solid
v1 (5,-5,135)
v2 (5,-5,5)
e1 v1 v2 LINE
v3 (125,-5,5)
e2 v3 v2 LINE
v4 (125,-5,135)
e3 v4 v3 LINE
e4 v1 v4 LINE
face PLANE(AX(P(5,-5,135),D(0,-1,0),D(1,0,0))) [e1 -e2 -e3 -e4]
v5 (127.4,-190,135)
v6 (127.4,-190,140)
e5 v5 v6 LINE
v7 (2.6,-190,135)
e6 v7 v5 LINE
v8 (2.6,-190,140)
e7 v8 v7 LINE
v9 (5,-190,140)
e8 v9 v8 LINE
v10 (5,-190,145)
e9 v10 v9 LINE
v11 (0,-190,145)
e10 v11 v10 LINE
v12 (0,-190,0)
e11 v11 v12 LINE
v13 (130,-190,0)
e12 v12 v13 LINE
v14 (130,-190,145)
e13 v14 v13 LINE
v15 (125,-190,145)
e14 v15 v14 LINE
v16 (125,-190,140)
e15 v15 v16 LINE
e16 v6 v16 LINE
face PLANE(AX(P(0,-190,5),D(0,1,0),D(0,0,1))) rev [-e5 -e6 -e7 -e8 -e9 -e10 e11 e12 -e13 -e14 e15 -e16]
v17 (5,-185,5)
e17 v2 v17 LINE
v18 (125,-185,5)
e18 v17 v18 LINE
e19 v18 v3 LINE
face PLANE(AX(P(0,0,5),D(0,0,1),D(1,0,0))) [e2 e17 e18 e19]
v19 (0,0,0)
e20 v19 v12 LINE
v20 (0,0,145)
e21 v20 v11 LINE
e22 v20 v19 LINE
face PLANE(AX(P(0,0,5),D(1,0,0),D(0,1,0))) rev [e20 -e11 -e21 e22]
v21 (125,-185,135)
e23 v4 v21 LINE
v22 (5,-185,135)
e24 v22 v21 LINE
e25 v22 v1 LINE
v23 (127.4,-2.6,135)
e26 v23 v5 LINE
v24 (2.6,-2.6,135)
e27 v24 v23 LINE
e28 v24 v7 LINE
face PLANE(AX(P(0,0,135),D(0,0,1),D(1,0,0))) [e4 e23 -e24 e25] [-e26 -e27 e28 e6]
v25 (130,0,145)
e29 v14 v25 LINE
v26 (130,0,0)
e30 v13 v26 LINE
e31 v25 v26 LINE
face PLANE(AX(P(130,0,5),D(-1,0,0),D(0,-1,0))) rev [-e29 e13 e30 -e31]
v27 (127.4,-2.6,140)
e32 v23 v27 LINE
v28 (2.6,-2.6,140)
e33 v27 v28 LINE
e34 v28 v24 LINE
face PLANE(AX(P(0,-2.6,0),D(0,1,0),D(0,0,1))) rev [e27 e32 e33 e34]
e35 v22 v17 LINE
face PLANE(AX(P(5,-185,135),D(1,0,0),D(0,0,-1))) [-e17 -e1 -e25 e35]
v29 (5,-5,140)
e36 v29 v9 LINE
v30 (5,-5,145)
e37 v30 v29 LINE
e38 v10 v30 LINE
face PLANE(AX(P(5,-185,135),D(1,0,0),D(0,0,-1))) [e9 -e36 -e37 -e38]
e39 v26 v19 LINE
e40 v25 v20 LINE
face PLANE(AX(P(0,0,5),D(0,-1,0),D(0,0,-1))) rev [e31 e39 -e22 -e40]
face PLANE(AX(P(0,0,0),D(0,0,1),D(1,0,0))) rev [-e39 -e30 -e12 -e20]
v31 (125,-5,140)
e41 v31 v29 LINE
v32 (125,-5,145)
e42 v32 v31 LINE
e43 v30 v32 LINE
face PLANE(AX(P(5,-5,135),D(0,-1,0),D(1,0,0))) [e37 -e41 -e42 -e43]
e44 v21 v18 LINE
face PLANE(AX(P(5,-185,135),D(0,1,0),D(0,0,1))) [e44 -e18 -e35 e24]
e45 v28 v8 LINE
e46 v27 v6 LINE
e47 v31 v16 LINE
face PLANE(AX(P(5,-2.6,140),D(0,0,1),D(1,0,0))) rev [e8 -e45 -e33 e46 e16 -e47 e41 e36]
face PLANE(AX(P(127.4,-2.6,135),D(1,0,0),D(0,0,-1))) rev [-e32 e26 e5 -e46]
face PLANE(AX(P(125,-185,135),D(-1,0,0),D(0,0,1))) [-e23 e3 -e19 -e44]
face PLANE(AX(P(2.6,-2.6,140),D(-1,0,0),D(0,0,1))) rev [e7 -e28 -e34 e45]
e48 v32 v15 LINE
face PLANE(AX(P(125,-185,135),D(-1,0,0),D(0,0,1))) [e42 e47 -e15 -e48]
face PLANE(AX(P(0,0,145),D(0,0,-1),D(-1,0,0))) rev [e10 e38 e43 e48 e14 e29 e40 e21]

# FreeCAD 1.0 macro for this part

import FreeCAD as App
import Part
import Sketcher
Q = App.Units.Quantity

doc = App.newDocument("Part")
body = doc.addObject("PartDesign::Body", "Body")

# Sketch on XY plane
sketch1 = doc.addObject("Sketcher::SketchObject", "Sketch")
body.addObject(sketch1)
sketch1.AttachmentSupport = (doc.XY_Plane, [""])
sketch1.MapMode = "FlatFace"
sketch1.addGeometry([
    Part.LineSegment(App.Vector(0, 0, 0), App.Vector(0, -190, 0)),
    Part.LineSegment(App.Vector(0, -190, 0), App.Vector(130, -190, 0)),
    Part.LineSegment(App.Vector(130, -190, 0), App.Vector(130, 0, 0)),
    Part.LineSegment(App.Vector(130, 0, 0), App.Vector(0, 0, 0)),
], False)
sketch1.addConstraint([
    Sketcher.Constraint("Coincident", 0, 2, 1, 1),
    Sketcher.Constraint("Coincident", 1, 2, 2, 1),
    Sketcher.Constraint("Coincident", 2, 2, 3, 1),
    Sketcher.Constraint("Coincident", 3, 2, 0, 1),
    Sketcher.Constraint("Vertical", 0),
    Sketcher.Constraint("Horizontal", 1),
    Sketcher.Constraint("Vertical", 2),
    Sketcher.Constraint("Horizontal", 3),
    Sketcher.Constraint("Coincident", 3, 2, -1, 1),
    Sketcher.Constraint("DistanceX", 1, 1, 1, 2, Q("130 mm")),
    Sketcher.Constraint("DistanceY", 0, 2, 0, 1, Q("190 mm")),
])
pad1 = doc.addObject("PartDesign::Pad", "Pad")
body.addObject(pad1)
pad1.Profile = sketch1
pad1.Length = 5

# Sketch on XY plane
sketch2 = doc.addObject("Sketcher::SketchObject", "Sketch001")
body.addObject(sketch2)
sketch2.AttachmentSupport = (doc.XY_Plane, [""])
sketch2.MapMode = "FlatFace"
sketch2.AttachmentOffset = App.Placement(App.Vector(0, 0, 5), App.Rotation())
sketch2.addGeometry([
    Part.LineSegment(App.Vector(0, 0, 0), App.Vector(0, -190, 0)),  # 0
    Part.LineSegment(App.Vector(0, -190, 0), App.Vector(130, -190, 0)),  # 1
    Part.LineSegment(App.Vector(130, -190, 0), App.Vector(130, 0, 0)),  # 2
    Part.LineSegment(App.Vector(130, 0, 0), App.Vector(0, 0, 0)),  # 3
    Part.LineSegment(App.Vector(125, -185, 0), App.Vector(5, -185, 0)),  # 4
    Part.LineSegment(App.Vector(5, -185, 0), App.Vector(5, -5, 0)),  # 5
    Part.LineSegment(App.Vector(5, -5, 0), App.Vector(125, -5, 0)),  # 6
    Part.LineSegment(App.Vector(125, -5, 0), App.Vector(125, -185, 0)),  # 7
], False)
sketch2.addConstraint([
    Sketcher.Constraint("Coincident", 0, 2, 1, 1),
    Sketcher.Constraint("Coincident", 1, 2, 2, 1),
    Sketcher.Constraint("Coincident", 2, 2, 3, 1),
    Sketcher.Constraint("Coincident", 3, 2, 0, 1),
    Sketcher.Constraint("Coincident", 4, 2, 5, 1),
    Sketcher.Constraint("Coincident", 5, 2, 6, 1),
    Sketcher.Constraint("Coincident", 6, 2, 7, 1),
    Sketcher.Constraint("Coincident", 7, 2, 4, 1),
    Sketcher.Constraint("Vertical", 0),
    Sketcher.Constraint("Horizontal", 1),
    Sketcher.Constraint("Vertical", 2),
    Sketcher.Constraint("Horizontal", 3),
    Sketcher.Constraint("Horizontal", 4),
    Sketcher.Constraint("Vertical", 5),
    Sketcher.Constraint("Horizontal", 6),
    Sketcher.Constraint("Vertical", 7),
    Sketcher.Constraint("Coincident", 3, 2, -1, 1),
    Sketcher.Constraint("DistanceX", 1, 1, 1, 2, Q("130 mm")),
    Sketcher.Constraint("DistanceX", 4, 2, 4, 1, Q("120 mm")),
    Sketcher.Constraint("DistanceY", 0, 2, 0, 1, Q("190 mm")),
    Sketcher.Constraint("DistanceY", 5, 1, 5, 2, Q("180 mm")),
    Sketcher.Constraint("DistanceX", -1, 1, 4, 2, Q("5 mm")),
    Sketcher.Constraint("DistanceY", 4, 2, -1, 1, Q("185 mm")),
])
pad2 = doc.addObject("PartDesign::Pad", "Pad001")
body.addObject(pad2)
pad2.Profile = sketch2
pad2.Length = 130

# Sketch on XY plane
sketch3 = doc.addObject("Sketcher::SketchObject", "Sketch002")
body.addObject(sketch3)
sketch3.AttachmentSupport = (doc.XY_Plane, [""])
sketch3.MapMode = "FlatFace"
sketch3.AttachmentOffset = App.Placement(App.Vector(0, 0, 135), App.Rotation())
sketch3.addGeometry([
    Part.LineSegment(App.Vector(0, 0, 0), App.Vector(0, -190, 0)),  # 0
    Part.LineSegment(App.Vector(0, -190, 0), App.Vector(5, -190, 0)),  # 1
    Part.LineSegment(App.Vector(5, -190, 0), App.Vector(5, -5, 0)),  # 2
    Part.LineSegment(App.Vector(5, -5, 0), App.Vector(125, -5, 0)),  # 3
    Part.LineSegment(App.Vector(125, -5, 0), App.Vector(125, -190, 0)),  # 4
    Part.LineSegment(App.Vector(125, -190, 0), App.Vector(130, -190, 0)),  # 5
    Part.LineSegment(App.Vector(130, -190, 0), App.Vector(130, 0, 0)),  # 6
    Part.LineSegment(App.Vector(130, 0, 0), App.Vector(0, 0, 0)),  # 7
], False)
sketch3.addConstraint([
    Sketcher.Constraint("Coincident", 0, 2, 1, 1),
    Sketcher.Constraint("Coincident", 1, 2, 2, 1),
    Sketcher.Constraint("Coincident", 2, 2, 3, 1),
    Sketcher.Constraint("Coincident", 3, 2, 4, 1),
    Sketcher.Constraint("Coincident", 4, 2, 5, 1),
    Sketcher.Constraint("Coincident", 5, 2, 6, 1),
    Sketcher.Constraint("Coincident", 6, 2, 7, 1),
    Sketcher.Constraint("Coincident", 7, 2, 0, 1),
    Sketcher.Constraint("Vertical", 0),
    Sketcher.Constraint("Horizontal", 1),
    Sketcher.Constraint("Vertical", 2),
    Sketcher.Constraint("Horizontal", 3),
    Sketcher.Constraint("Vertical", 4),
    Sketcher.Constraint("Horizontal", 5),
    Sketcher.Constraint("Vertical", 6),
    Sketcher.Constraint("Horizontal", 7),
    Sketcher.Constraint("Coincident", 7, 2, -1, 1),
    Sketcher.Constraint("Horizontal", 1, 2, 4, 2),
    Sketcher.Constraint("Equal", 1, 5),
    Sketcher.Constraint("DistanceX", 1, 1, 1, 2, Q("5 mm")),
    Sketcher.Constraint("DistanceX", 3, 1, 3, 2, Q("120 mm")),
    Sketcher.Constraint("DistanceY", 0, 2, 0, 1, Q("190 mm")),
    Sketcher.Constraint("DistanceY", 2, 1, 2, 2, Q("185 mm")),
])
pad3 = doc.addObject("PartDesign::Pad", "Pad002")
body.addObject(pad3)
pad3.Profile = sketch3
pad3.Length = 10

# Sketch on XZ plane
sketch4 = doc.addObject("Sketcher::SketchObject", "Sketch003")
body.addObject(sketch4)
sketch4.AttachmentSupport = (doc.XZ_Plane, [""])
sketch4.MapMode = "FlatFace"
sketch4.AttachmentOffset = App.Placement(App.Vector(0, 0, 190), App.Rotation())
sketch4.addGeometry([
    Part.LineSegment(App.Vector(2.6, 140, 0), App.Vector(2.6, 135, 0)),  # 0
    Part.LineSegment(App.Vector(2.6, 135, 0), App.Vector(5, 135, 0)),  # 1
    Part.LineSegment(App.Vector(5, 135, 0), App.Vector(5, 140, 0)),  # 2
    Part.LineSegment(App.Vector(5, 140, 0), App.Vector(2.6, 140, 0)),  # 3
    Part.LineSegment(App.Vector(125, 140, 0), App.Vector(125, 135, 0)),  # 4
    Part.LineSegment(App.Vector(125, 135, 0), App.Vector(127.4, 135, 0)),  # 5
    Part.LineSegment(App.Vector(127.4, 135, 0), App.Vector(127.4, 140, 0)),  # 6
    Part.LineSegment(App.Vector(127.4, 140, 0), App.Vector(125, 140, 0)),  # 7
], False)
sketch4.addConstraint([
    Sketcher.Constraint("Coincident", 0, 2, 1, 1),
    Sketcher.Constraint("Coincident", 1, 2, 2, 1),
    Sketcher.Constraint("Coincident", 2, 2, 3, 1),
    Sketcher.Constraint("Coincident", 3, 2, 0, 1),
    Sketcher.Constraint("Coincident", 4, 2, 5, 1),
    Sketcher.Constraint("Coincident", 5, 2, 6, 1),
    Sketcher.Constraint("Coincident", 6, 2, 7, 1),
    Sketcher.Constraint("Coincident", 7, 2, 4, 1),
    Sketcher.Constraint("Vertical", 0),
    Sketcher.Constraint("Horizontal", 1),
    Sketcher.Constraint("Vertical", 2),
    Sketcher.Constraint("Horizontal", 3),
    Sketcher.Constraint("Vertical", 4),
    Sketcher.Constraint("Horizontal", 5),
    Sketcher.Constraint("Vertical", 6),
    Sketcher.Constraint("Horizontal", 7),
    Sketcher.Constraint("Horizontal", 1, 2, 4, 2),
    Sketcher.Constraint("Horizontal", 3, 2, 6, 2),
    Sketcher.Constraint("Equal", 3, 5),
    Sketcher.Constraint("DistanceY", 0, 2, 0, 1, Q("5 mm")),
    Sketcher.Constraint("DistanceX", 1, 1, 1, 2, Q("2.4 mm")),
    Sketcher.Constraint("DistanceY", -1, 1, 0, 2, Q("135 mm")),
    Sketcher.Constraint("DistanceX", -1, 1, 1, 2, Q("5 mm")),
    Sketcher.Constraint("DistanceX", -1, 1, 4, 2, Q("125 mm")),
])
pocket1 = doc.addObject("PartDesign::Pocket", "Pocket")
body.addObject(pocket1)
pocket1.Profile = sketch4
pocket1.Length = 187.4

# Sketch on XZ plane
sketch5 = doc.addObject("Sketcher::SketchObject", "Sketch004")
body.addObject(sketch5)
sketch5.AttachmentSupport = (doc.XZ_Plane, [""])
sketch5.MapMode = "FlatFace"
sketch5.AttachmentOffset = App.Placement(App.Vector(0, 0, 5), App.Rotation())
sketch5.addGeometry([
    Part.LineSegment(App.Vector(5, 140, 0), App.Vector(5, 135, 0)),
    Part.LineSegment(App.Vector(5, 135, 0), App.Vector(125, 135, 0)),
    Part.LineSegment(App.Vector(125, 135, 0), App.Vector(125, 140, 0)),
    Part.LineSegment(App.Vector(125, 140, 0), App.Vector(5, 140, 0)),
], False)
sketch5.addConstraint([
    Sketcher.Constraint("Coincident", 0, 2, 1, 1),
    Sketcher.Constraint("Coincident", 1, 2, 2, 1),
    Sketcher.Constraint("Coincident", 2, 2, 3, 1),
    Sketcher.Constraint("Coincident", 3, 2, 0, 1),
    Sketcher.Constraint("Vertical", 0),
    Sketcher.Constraint("Horizontal", 1),
    Sketcher.Constraint("Vertical", 2),
    Sketcher.Constraint("Horizontal", 3),
    Sketcher.Constraint("DistanceX", 1, 1, 1, 2, Q("120 mm")),
    Sketcher.Constraint("DistanceY", 0, 2, 0, 1, Q("5 mm")),
    Sketcher.Constraint("DistanceX", -1, 1, 0, 2, Q("5 mm")),
    Sketcher.Constraint("DistanceY", -1, 1, 0, 2, Q("135 mm")),
])
pocket2 = doc.addObject("PartDesign::Pocket", "Pocket001")
body.addObject(pocket2)
pocket2.Profile = sketch5
pocket2.Length = 2.4

doc.recompute()
